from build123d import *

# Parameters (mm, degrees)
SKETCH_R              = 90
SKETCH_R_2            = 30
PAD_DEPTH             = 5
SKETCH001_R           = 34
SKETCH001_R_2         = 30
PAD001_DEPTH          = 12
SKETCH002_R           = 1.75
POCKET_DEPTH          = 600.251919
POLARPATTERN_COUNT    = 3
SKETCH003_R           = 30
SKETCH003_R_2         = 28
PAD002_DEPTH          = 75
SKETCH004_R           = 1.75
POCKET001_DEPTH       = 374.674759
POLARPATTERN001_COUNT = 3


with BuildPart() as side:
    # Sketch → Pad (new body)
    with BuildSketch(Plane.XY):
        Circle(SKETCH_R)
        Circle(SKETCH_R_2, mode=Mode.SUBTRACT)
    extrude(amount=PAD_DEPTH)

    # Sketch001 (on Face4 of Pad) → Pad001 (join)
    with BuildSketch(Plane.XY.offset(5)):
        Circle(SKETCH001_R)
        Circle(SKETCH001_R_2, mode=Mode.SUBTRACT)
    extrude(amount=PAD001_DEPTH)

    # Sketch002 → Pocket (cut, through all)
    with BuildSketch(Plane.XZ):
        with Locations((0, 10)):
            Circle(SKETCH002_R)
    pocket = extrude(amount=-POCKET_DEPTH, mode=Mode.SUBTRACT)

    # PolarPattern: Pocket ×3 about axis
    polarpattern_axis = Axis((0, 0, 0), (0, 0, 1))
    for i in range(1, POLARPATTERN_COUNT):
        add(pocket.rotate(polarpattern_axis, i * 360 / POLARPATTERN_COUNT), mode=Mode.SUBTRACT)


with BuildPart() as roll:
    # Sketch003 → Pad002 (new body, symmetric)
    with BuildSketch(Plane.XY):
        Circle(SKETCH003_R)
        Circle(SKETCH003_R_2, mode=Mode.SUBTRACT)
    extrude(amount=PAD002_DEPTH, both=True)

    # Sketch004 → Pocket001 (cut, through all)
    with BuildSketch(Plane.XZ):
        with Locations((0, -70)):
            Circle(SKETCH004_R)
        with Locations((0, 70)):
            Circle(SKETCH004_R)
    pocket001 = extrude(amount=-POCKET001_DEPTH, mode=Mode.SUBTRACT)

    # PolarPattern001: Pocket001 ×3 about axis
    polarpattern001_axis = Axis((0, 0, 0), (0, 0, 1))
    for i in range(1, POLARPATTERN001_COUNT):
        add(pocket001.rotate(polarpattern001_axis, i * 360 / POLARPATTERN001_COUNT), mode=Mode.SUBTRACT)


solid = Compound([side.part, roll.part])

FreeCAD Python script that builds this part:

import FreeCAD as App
import Part
import Sketcher
from FreeCAD import Vector
Q = App.Units.Quantity

doc = App.newDocument("Part")
body = doc.addObject("PartDesign::Body", "Body")

# Sketch on XY plane
sketch1 = body.newObject("Sketcher::SketchObject", "Sketch")
sketch1.AttachmentSupport = (doc.getObject("XY_Plane"), [""])
sketch1.MapMode = "FlatFace"
sketch1.addGeometry(Part.Circle(Vector(0, 0, 0), Vector(0, 0, 1), 90), False)
sketch1.addGeometry(Part.Circle(Vector(0, 0, 0), Vector(0, 0, 1), 30), False)
sketch1.addConstraint(Sketcher.Constraint("Coincident", 0, 3, -1, 1))
sketch1.addConstraint(Sketcher.Constraint("Coincident", 1, 3, -1, 1))
sketch1.addConstraint(Sketcher.Constraint("Diameter", 0, Q("180 mm")))
sketch1.addConstraint(Sketcher.Constraint("Diameter", 1, Q("60 mm")))
pad1 = body.newObject("PartDesign::Pad", "Pad")
pad1.Profile = sketch1
pad1.Length = 5

# Sketch on XY plane
sketch2 = body.newObject("Sketcher::SketchObject", "Sketch001")
sketch2.AttachmentSupport = (doc.getObject("XY_Plane"), [""])
sketch2.MapMode = "FlatFace"
sketch2.AttachmentOffset = App.Placement(Vector(0, 0, 5), App.Rotation())
sketch2.addGeometry(Part.Circle(Vector(0, 0, 0), Vector(0, 0, 1), 34), False)
sketch2.addGeometry(Part.Circle(Vector(0, 0, 0), Vector(0, 0, 1), 30), False)
sketch2.addConstraint(Sketcher.Constraint("Coincident", 0, 3, -1, 1))
sketch2.addConstraint(Sketcher.Constraint("Coincident", 1, 3, -1, 1))
sketch2.addConstraint(Sketcher.Constraint("Diameter", 0, Q("68 mm")))
sketch2.addConstraint(Sketcher.Constraint("Diameter", 1, Q("60 mm")))
pad2 = body.newObject("PartDesign::Pad", "Pad001")
pad2.Profile = sketch2
pad2.Length = 12

# Sketch on XZ plane
sketch3 = body.newObject("Sketcher::SketchObject", "Sketch002")
sketch3.AttachmentSupport = (doc.getObject("XZ_Plane"), [""])
sketch3.MapMode = "FlatFace"
sketch3.addGeometry(Part.Circle(Vector(0, 10, 0), Vector(0, 0, 1), 1.8), False)
sketch3.addConstraint(Sketcher.Constraint("PointOnObject", 0, 3, -2))
sketch3.addConstraint(Sketcher.Constraint("Diameter", 0, Q("3.5 mm")))
sketch3.addConstraint(Sketcher.Constraint("DistanceY", -1, 1, 0, 3, Q("10 mm")))
pocket1 = body.newObject("PartDesign::Pocket", "Pocket")
pocket1.Profile = sketch3
pocket1.Type = "ThroughAll"
doc.recompute()

polarpattern = body.newObject("PartDesign::PolarPattern", "PolarPattern")
polarpattern.Originals = [pocket1]
polarpattern.Axis = (doc.getObject("Z_Axis"), [""])
polarpattern.Angle = 360
polarpattern.Occurrences = 3
body.Tip = polarpattern
body2 = doc.addObject("PartDesign::Body", "Body001")

# Sketch on XY plane
sketch4 = body2.newObject("Sketcher::SketchObject", "Sketch003")
sketch4.AttachmentSupport = (doc.getObject("XY_Plane001"), [""])
sketch4.MapMode = "FlatFace"
sketch4.addGeometry(Part.Circle(Vector(0, 0, 0), Vector(0, 0, 1), 30), False)
sketch4.addGeometry(Part.Circle(Vector(0, 0, 0), Vector(0, 0, 1), 28), False)
sketch4.addConstraint(Sketcher.Constraint("Coincident", 0, 3, -1, 1))
sketch4.addConstraint(Sketcher.Constraint("Coincident", 1, 3, -1, 1))
sketch4.addConstraint(Sketcher.Constraint("Diameter", 0, Q("60 mm")))
sketch4.addConstraint(Sketcher.Constraint("Diameter", 1, Q("56 mm")))
pad3 = body2.newObject("PartDesign::Pad", "Pad002")
pad3.Profile = sketch4
pad3.Length = 150
pad3.Midplane = True

# Sketch on XZ plane
sketch5 = body2.newObject("Sketcher::SketchObject", "Sketch004")
sketch5.AttachmentSupport = (doc.getObject("XZ_Plane001"), [""])
sketch5.MapMode = "FlatFace"
sketch5.addGeometry(Part.Circle(Vector(0, -70, 0), Vector(0, 0, 1), 1.8), False)
sketch5.addGeometry(Part.Circle(Vector(0, 70, 0), Vector(0, 0, 1), 1.8), False)
sketch5.addConstraint(Sketcher.Constraint("Equal", 0, 1))
sketch5.addConstraint(Sketcher.Constraint("Symmetric", 0, 3, 1, 3, -1, 1))
sketch5.addConstraint(Sketcher.Constraint("PointOnObject", 0, 3, -2))
sketch5.addConstraint(Sketcher.Constraint("Diameter", 0, Q("3.5 mm")))
sketch5.addConstraint(Sketcher.Constraint("DistanceY", 0, 3, -1, 1, Q("70 mm")))
pocket2 = body2.newObject("PartDesign::Pocket", "Pocket001")
pocket2.Profile = sketch5
pocket2.Type = "ThroughAll"
doc.recompute()

polarpattern2 = body2.newObject("PartDesign::PolarPattern", "PolarPattern001")
polarpattern2.Originals = [pocket2]
polarpattern2.Axis = (doc.getObject("Z_Axis001"), [""])
polarpattern2.Angle = 360
polarpattern2.Occurrences = 3
body2.Tip = polarpattern2

doc.recompute()
